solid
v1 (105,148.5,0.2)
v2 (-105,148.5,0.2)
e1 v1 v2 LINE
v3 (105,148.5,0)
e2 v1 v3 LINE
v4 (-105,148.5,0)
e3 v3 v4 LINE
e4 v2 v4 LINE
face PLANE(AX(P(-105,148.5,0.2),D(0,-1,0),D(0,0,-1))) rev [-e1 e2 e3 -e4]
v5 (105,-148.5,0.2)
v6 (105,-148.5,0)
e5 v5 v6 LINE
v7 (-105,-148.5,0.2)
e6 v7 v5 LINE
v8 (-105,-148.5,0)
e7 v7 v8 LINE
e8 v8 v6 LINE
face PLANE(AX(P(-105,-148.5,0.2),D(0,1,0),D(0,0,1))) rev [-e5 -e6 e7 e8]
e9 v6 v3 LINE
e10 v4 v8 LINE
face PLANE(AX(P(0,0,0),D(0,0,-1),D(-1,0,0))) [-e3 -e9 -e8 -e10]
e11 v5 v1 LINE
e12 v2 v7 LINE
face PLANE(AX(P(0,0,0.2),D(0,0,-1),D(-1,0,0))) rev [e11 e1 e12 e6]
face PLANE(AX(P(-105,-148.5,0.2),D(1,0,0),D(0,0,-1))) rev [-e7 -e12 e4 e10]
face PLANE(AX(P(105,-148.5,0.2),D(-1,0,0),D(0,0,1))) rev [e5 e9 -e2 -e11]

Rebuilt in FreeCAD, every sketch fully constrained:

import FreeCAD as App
import Part
import Sketcher

V = App.Vector
Q = App.Units.Quantity


def add_polygon(sketch, points):
    """Adds a closed chain of lines whose ends are joined by coincident constraints."""
    first, n = sketch.GeometryCount, len(points)
    for a, b in zip(points, points[1:] + points[:1]):
        sketch.addGeometry(Part.LineSegment(App.Vector(*a, 0), App.Vector(*b, 0)), False)
    for i in range(n):
        sketch.addConstraint(Sketcher.Constraint("Coincident", first + i, 2, first + (i + 1) % n, 1))

doc = App.newDocument("Part")
body = doc.addObject("PartDesign::Body", "Body")

# Sketch on XY plane
sketch1 = doc.addObject("Sketcher::SketchObject", "Sketch")
body.addObject(sketch1)
sketch1.AttachmentSupport = (doc.XY_Plane, [""])
sketch1.MapMode = "FlatFace"
add_polygon(sketch1, [(-105, 148), (-105, -148), (105, -148), (105, 148)])  # lines 0-3
sketch1.addConstraint([
    Sketcher.Constraint("Vertical", 0),
    Sketcher.Constraint("Horizontal", 1),
    Sketcher.Constraint("Vertical", 2),
    Sketcher.Constraint("Horizontal", 3),
    Sketcher.Constraint("Symmetric", 0, 2, 2, 2, -1, 1),
    Sketcher.Constraint("DistanceX", 1, 1, 1, 2, Q("210 mm")),
    Sketcher.Constraint("DistanceY", 0, 2, 0, 1, Q("297 mm")),
])
pad1 = doc.addObject("PartDesign::Pad", "Pad")
body.addObject(pad1)
pad1.Profile = sketch1
pad1.Length = 0.2

doc.recompute()
